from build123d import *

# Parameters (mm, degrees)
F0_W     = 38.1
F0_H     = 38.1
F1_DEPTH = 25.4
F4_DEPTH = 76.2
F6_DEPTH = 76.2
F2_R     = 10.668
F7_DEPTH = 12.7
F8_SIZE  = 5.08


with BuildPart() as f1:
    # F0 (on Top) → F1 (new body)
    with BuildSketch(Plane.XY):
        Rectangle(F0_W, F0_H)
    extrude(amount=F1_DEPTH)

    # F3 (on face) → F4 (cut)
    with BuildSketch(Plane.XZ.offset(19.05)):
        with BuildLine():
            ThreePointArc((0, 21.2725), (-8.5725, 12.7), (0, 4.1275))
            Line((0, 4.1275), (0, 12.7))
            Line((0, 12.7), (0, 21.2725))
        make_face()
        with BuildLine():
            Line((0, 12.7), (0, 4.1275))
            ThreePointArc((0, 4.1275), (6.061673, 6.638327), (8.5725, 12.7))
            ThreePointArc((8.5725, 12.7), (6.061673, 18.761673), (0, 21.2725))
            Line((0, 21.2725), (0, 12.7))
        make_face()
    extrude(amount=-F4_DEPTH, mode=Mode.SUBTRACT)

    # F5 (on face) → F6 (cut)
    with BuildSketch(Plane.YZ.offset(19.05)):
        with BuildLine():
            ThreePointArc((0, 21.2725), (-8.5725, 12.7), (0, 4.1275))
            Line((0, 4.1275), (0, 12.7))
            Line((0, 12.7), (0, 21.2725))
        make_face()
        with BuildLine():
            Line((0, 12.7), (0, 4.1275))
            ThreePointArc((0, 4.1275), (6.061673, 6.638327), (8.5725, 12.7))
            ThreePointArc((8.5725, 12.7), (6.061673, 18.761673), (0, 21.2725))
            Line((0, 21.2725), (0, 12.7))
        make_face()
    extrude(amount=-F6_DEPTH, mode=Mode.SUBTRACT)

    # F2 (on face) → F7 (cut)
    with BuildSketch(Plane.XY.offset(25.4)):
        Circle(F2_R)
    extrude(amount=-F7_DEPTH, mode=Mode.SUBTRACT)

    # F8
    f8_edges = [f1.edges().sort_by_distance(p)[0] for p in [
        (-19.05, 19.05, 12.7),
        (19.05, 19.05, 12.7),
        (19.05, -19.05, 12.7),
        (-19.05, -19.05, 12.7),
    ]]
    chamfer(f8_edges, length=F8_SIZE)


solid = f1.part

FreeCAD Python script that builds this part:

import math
import FreeCAD as App
import Part
import Sketcher
from FreeCAD import Vector
Q = App.Units.Quantity


def edges_at(feature, points):
    """Names of the edges that pass closest to the given points."""
    edges = feature.Shape.Edges
    near = lambda p: min(range(len(edges)), key=lambda i: edges[i].distToShape(Part.Vertex(*p))[0])
    return sorted({f"Edge{near(p) + 1}" for p in points})

doc = App.newDocument("Part")
params = doc.addObject("Spreadsheet::Sheet", "Params")
for row, (alias, value) in enumerate([
    ("sketch1_width", "1.5 in"),
    ("pad1_length", "1 in"),
    ("pocket1_length", "3 in"),
    ("pocket2_length", "3 in"),
    ("sketch4_diameter", "0.84 in"),
    ("pocket3_length", "0.5 in"),
    ("chamfer_size", "0.2 in"),
], start=1):
    params.set(f"A{row}", alias)
    params.set(f"B{row}", "=" + value)
    params.setAlias(f"B{row}", alias)

body = doc.addObject("PartDesign::Body", "Body")

# Sketch on XY plane
sketch1 = doc.addObject("Sketcher::SketchObject", "Sketch")
body.addObject(sketch1)
sketch1.AttachmentSupport = (doc.XY_Plane, [""])
sketch1.MapMode = "FlatFace"
sketch1.addGeometry(Part.LineSegment(Vector(-19, 19, 0), Vector(-19, -19, 0)), False)
sketch1.addGeometry(Part.LineSegment(Vector(-19, -19, 0), Vector(19, -19, 0)), False)
sketch1.addGeometry(Part.LineSegment(Vector(19, -19, 0), Vector(19, 19, 0)), False)
sketch1.addGeometry(Part.LineSegment(Vector(19, 19, 0), Vector(-19, 19, 0)), False)
sketch1.addConstraint(Sketcher.Constraint("Coincident", 0, 2, 1, 1))
sketch1.addConstraint(Sketcher.Constraint("Coincident", 1, 2, 2, 1))
sketch1.addConstraint(Sketcher.Constraint("Coincident", 2, 2, 3, 1))
sketch1.addConstraint(Sketcher.Constraint("Coincident", 3, 2, 0, 1))
sketch1.addConstraint(Sketcher.Constraint("Vertical", 0))
sketch1.addConstraint(Sketcher.Constraint("Horizontal", 1))
sketch1.addConstraint(Sketcher.Constraint("Vertical", 2))
sketch1.addConstraint(Sketcher.Constraint("Horizontal", 3))
sketch1.addConstraint(Sketcher.Constraint("Symmetric", 0, 2, 2, 2, -1, 1))
sketch1.addConstraint(Sketcher.Constraint("Equal", 3, 0))
sketch1.addConstraint(Sketcher.Constraint("DistanceX", 1, 1, 1, 2, Q("1.5 in")))
sketch1.setExpression("Constraints[10]", "Params.sketch1_width")
pad1 = doc.addObject("PartDesign::Pad", "Pad")
body.addObject(pad1)
pad1.Profile = sketch1
pad1.setExpression("Length", "Params.pad1_length")

# Sketch on XZ plane
sketch2 = doc.addObject("Sketcher::SketchObject", "Sketch001")
body.addObject(sketch2)
sketch2.AttachmentSupport = (doc.XZ_Plane, [""])
sketch2.MapMode = "FlatFace"
sketch2.AttachmentOffset = App.Placement(Vector(0, 0, 0.75 * 25.4), App.Rotation())
sketch2.addGeometry(Part.ArcOfCircle(Part.Circle(Vector(0, 13, 0), Vector(0, 0, 1), 9), math.radians(90), math.radians(270)), False)
sketch2.addGeometry(Part.ArcOfCircle(Part.Circle(Vector(0, 13, 0), Vector(0, 0, 1), 9), math.radians(-90), math.radians(0)), False)
sketch2.addGeometry(Part.ArcOfCircle(Part.Circle(Vector(0, 13, 0), Vector(0, 0, 1), 9), math.radians(0), math.radians(90)), False)
sketch2.addConstraint(Sketcher.Constraint("Tangent", 0, 2, 1, 1))
sketch2.addConstraint(Sketcher.Constraint("Tangent", 1, 2, 2, 1))
sketch2.addConstraint(Sketcher.Constraint("Tangent", 2, 2, 0, 1))
sketch2.addConstraint(Sketcher.Constraint("PointOnObject", 0, 3, -2))
sketch2.addConstraint(Sketcher.Constraint("PointOnObject", 0, 2, -2))
sketch2.addConstraint(Sketcher.Constraint("PointOnObject", 2, 2, -2))
sketch2.addConstraint(Sketcher.Constraint("Horizontal", 2, 3, 1, 2))
sketch2.addConstraint(Sketcher.Constraint("DistanceY", -1, 1, 0, 3, Q("0.5 in")))
sketch2.addConstraint(Sketcher.Constraint("Radius", 0, Q("0.3375 in")))
pocket1 = doc.addObject("PartDesign::Pocket", "Pocket")
body.addObject(pocket1)
pocket1.Profile = sketch2
pocket1.setExpression("Length", "Params.pocket1_length")

# Sketch on YZ plane
sketch3 = doc.addObject("Sketcher::SketchObject", "Sketch002")
body.addObject(sketch3)
sketch3.AttachmentSupport = (doc.YZ_Plane, [""])
sketch3.MapMode = "FlatFace"
sketch3.AttachmentOffset = App.Placement(Vector(0, 0, 0.75 * 25.4), App.Rotation())
sketch3.addGeometry(Part.ArcOfCircle(Part.Circle(Vector(0, 13, 0), Vector(0, 0, 1), 9), math.radians(90), math.radians(270)), False)
sketch3.addGeometry(Part.ArcOfCircle(Part.Circle(Vector(0, 13, 0), Vector(0, 0, 1), 9), math.radians(-90), math.radians(0)), False)
sketch3.addGeometry(Part.ArcOfCircle(Part.Circle(Vector(0, 13, 0), Vector(0, 0, 1), 9), math.radians(0), math.radians(90)), False)
sketch3.addConstraint(Sketcher.Constraint("Tangent", 0, 2, 1, 1))
sketch3.addConstraint(Sketcher.Constraint("Tangent", 1, 2, 2, 1))
sketch3.addConstraint(Sketcher.Constraint("Tangent", 2, 2, 0, 1))
sketch3.addConstraint(Sketcher.Constraint("PointOnObject", 0, 3, -2))
sketch3.addConstraint(Sketcher.Constraint("PointOnObject", 0, 2, -2))
sketch3.addConstraint(Sketcher.Constraint("PointOnObject", 2, 2, -2))
sketch3.addConstraint(Sketcher.Constraint("Horizontal", 2, 3, 1, 2))
sketch3.addConstraint(Sketcher.Constraint("DistanceY", -1, 1, 0, 3, Q("0.5 in")))
sketch3.addConstraint(Sketcher.Constraint("Radius", 0, Q("0.3375 in")))
pocket2 = doc.addObject("PartDesign::Pocket", "Pocket001")
body.addObject(pocket2)
pocket2.Profile = sketch3
pocket2.setExpression("Length", "Params.pocket2_length")

# Sketch on XY plane
sketch4 = doc.addObject("Sketcher::SketchObject", "Sketch003")
body.addObject(sketch4)
sketch4.AttachmentSupport = (doc.XY_Plane, [""])
sketch4.MapMode = "FlatFace"
sketch4.AttachmentOffset = App.Placement(Vector(0, 0, 1 * 25.4), App.Rotation())
sketch4.addGeometry(Part.Circle(Vector(0, 0, 0), Vector(0, 0, 1), 11), False)
sketch4.addConstraint(Sketcher.Constraint("Coincident", 0, 3, -1, 1))
sketch4.addConstraint(Sketcher.Constraint("Diameter", 0, Q("0.84 in")))
sketch4.setExpression("Constraints[1]", "Params.sketch4_diameter")
pocket3 = doc.addObject("PartDesign::Pocket", "Pocket002")
body.addObject(pocket3)
pocket3.Profile = sketch4
pocket3.setExpression("Length", "Params.pocket3_length")
doc.recompute()

chamfer = doc.addObject("PartDesign::Chamfer", "Chamfer")
body.addObject(chamfer)
chamfer.Base = (pocket3, edges_at(pocket3, [
    (-19.05, 19.05, 12.7),
    (19.05, 19.05, 12.7),
    (19.05, -19.05, 12.7),
    (-19.05, -19.05, 12.7),
]))
chamfer.setExpression("Size", "Params.chamfer_size")

doc.recompute()
